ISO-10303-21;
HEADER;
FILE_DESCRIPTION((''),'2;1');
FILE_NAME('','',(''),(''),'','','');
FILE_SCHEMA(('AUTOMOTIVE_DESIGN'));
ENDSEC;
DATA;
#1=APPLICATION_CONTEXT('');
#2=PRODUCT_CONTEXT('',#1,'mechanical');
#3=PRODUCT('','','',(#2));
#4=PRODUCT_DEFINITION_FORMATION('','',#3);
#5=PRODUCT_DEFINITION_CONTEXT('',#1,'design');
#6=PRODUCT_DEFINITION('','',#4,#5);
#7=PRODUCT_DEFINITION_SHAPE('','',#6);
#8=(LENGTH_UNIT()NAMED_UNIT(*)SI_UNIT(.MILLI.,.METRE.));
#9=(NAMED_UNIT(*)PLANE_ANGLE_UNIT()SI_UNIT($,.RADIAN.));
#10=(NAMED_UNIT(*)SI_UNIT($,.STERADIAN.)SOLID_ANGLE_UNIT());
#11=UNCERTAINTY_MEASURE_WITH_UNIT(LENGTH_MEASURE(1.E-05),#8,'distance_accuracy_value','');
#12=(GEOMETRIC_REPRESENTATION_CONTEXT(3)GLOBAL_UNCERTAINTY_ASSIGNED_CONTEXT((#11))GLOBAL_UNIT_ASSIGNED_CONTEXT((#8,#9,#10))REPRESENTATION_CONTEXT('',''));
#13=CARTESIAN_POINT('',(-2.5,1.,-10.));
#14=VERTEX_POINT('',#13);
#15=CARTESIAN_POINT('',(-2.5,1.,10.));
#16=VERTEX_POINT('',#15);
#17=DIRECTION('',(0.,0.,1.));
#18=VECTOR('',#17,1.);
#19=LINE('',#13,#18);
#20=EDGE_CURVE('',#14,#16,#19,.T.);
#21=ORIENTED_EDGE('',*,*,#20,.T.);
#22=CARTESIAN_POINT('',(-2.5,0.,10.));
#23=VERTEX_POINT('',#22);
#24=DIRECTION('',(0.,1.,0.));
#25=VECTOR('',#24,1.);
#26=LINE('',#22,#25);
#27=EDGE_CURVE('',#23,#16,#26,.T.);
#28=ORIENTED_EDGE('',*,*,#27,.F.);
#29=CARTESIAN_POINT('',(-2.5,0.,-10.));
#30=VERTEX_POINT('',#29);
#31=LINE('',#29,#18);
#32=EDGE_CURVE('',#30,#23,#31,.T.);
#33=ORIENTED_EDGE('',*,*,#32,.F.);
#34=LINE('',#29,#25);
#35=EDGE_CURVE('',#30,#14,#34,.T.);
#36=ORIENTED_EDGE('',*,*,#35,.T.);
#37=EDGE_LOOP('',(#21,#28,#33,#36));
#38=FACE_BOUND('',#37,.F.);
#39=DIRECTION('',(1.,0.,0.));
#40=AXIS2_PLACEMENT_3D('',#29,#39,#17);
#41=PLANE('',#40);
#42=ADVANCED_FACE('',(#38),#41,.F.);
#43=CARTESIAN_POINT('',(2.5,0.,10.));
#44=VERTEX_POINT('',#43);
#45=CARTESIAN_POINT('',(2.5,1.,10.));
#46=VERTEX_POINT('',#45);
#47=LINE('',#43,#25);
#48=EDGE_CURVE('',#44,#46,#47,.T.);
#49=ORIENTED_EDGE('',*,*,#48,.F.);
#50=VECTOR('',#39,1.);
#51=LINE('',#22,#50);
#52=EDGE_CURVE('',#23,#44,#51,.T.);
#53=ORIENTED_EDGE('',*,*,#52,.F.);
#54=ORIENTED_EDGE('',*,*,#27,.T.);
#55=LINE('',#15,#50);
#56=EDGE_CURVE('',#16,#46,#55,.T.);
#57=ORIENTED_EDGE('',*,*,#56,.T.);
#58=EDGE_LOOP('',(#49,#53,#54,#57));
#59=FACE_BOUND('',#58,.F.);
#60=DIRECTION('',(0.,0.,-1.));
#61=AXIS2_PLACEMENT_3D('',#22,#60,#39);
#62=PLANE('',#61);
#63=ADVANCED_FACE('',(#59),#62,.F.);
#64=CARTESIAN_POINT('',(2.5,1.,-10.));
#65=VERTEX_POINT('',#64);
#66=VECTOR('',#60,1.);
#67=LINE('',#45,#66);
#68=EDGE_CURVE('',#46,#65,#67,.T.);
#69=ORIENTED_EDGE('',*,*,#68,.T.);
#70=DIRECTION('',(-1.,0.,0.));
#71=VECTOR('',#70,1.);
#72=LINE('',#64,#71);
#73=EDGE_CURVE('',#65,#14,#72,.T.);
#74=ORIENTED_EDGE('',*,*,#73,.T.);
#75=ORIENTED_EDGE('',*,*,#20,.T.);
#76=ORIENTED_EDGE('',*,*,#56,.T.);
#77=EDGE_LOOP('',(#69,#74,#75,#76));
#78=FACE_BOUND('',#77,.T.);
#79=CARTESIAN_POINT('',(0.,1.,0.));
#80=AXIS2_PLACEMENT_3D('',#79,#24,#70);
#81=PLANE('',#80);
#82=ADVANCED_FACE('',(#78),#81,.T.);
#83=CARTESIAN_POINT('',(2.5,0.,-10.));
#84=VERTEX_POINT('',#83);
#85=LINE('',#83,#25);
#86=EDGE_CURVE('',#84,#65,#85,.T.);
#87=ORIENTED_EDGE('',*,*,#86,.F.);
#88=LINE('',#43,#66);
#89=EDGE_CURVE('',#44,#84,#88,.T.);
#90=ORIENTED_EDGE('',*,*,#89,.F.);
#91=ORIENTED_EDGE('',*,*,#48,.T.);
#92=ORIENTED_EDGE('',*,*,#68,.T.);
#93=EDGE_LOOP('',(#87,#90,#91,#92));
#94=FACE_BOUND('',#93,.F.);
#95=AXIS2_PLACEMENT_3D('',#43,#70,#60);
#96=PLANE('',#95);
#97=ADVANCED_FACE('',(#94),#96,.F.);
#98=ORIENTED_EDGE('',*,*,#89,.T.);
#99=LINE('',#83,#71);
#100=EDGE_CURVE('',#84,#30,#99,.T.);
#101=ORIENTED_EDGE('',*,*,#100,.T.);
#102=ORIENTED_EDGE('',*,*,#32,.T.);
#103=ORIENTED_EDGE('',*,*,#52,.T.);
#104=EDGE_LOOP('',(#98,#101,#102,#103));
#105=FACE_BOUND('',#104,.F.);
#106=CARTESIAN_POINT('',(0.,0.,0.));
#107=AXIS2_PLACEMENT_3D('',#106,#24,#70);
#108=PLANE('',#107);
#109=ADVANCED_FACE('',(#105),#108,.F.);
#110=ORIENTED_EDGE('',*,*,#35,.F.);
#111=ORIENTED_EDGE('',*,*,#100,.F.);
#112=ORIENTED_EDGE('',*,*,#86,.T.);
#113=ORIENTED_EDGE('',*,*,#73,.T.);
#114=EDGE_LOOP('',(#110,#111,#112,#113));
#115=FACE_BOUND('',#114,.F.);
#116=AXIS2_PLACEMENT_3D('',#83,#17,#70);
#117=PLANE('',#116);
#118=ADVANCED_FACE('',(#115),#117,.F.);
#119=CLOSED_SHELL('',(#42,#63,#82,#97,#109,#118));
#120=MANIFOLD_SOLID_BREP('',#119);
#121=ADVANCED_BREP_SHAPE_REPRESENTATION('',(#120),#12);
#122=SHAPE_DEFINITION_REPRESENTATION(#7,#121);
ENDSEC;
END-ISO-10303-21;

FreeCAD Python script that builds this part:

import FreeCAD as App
import Part
import Sketcher

V = App.Vector
Q = App.Units.Quantity


def add_polygon(sketch, points):
    """Adds a closed chain of lines whose ends are joined by coincident constraints."""
    first, n = sketch.GeometryCount, len(points)
    for a, b in zip(points, points[1:] + points[:1]):
        sketch.addGeometry(Part.LineSegment(App.Vector(*a, 0), App.Vector(*b, 0)), False)
    for i in range(n):
        sketch.addConstraint(Sketcher.Constraint("Coincident", first + i, 2, first + (i + 1) % n, 1))

doc = App.newDocument("Part")
body = doc.addObject("PartDesign::Body", "Body")

# Sketch on XZ plane
sketch1 = body.newObject("Sketcher::SketchObject", "Sketch")
sketch1.AttachmentSupport = (doc.getObject("XZ_Plane"), [""])
sketch1.MapMode = "FlatFace"
add_polygon(sketch1, [(-2, 10), (2, 10), (2, -10), (-2, -10)])  # lines 0-3
sketch1.addConstraint(Sketcher.Constraint("Horizontal", 0))
sketch1.addConstraint(Sketcher.Constraint("Vertical", 1))
sketch1.addConstraint(Sketcher.Constraint("Horizontal", 2))
sketch1.addConstraint(Sketcher.Constraint("Vertical", 3))
sketch1.addConstraint(Sketcher.Constraint("Symmetric", 0, 2, 2, 2, -1, 1))
sketch1.addConstraint(Sketcher.Constraint("DistanceX", 0, 1, 0, 2, Q("5 mm")))
sketch1.addConstraint(Sketcher.Constraint("DistanceY", 1, 2, 1, 1, Q("20 mm")))
pad1 = body.newObject("PartDesign::Pad", "Pad")
pad1.Profile = sketch1
pad1.Length = 1
pad1.Reversed = True

doc.recompute()
